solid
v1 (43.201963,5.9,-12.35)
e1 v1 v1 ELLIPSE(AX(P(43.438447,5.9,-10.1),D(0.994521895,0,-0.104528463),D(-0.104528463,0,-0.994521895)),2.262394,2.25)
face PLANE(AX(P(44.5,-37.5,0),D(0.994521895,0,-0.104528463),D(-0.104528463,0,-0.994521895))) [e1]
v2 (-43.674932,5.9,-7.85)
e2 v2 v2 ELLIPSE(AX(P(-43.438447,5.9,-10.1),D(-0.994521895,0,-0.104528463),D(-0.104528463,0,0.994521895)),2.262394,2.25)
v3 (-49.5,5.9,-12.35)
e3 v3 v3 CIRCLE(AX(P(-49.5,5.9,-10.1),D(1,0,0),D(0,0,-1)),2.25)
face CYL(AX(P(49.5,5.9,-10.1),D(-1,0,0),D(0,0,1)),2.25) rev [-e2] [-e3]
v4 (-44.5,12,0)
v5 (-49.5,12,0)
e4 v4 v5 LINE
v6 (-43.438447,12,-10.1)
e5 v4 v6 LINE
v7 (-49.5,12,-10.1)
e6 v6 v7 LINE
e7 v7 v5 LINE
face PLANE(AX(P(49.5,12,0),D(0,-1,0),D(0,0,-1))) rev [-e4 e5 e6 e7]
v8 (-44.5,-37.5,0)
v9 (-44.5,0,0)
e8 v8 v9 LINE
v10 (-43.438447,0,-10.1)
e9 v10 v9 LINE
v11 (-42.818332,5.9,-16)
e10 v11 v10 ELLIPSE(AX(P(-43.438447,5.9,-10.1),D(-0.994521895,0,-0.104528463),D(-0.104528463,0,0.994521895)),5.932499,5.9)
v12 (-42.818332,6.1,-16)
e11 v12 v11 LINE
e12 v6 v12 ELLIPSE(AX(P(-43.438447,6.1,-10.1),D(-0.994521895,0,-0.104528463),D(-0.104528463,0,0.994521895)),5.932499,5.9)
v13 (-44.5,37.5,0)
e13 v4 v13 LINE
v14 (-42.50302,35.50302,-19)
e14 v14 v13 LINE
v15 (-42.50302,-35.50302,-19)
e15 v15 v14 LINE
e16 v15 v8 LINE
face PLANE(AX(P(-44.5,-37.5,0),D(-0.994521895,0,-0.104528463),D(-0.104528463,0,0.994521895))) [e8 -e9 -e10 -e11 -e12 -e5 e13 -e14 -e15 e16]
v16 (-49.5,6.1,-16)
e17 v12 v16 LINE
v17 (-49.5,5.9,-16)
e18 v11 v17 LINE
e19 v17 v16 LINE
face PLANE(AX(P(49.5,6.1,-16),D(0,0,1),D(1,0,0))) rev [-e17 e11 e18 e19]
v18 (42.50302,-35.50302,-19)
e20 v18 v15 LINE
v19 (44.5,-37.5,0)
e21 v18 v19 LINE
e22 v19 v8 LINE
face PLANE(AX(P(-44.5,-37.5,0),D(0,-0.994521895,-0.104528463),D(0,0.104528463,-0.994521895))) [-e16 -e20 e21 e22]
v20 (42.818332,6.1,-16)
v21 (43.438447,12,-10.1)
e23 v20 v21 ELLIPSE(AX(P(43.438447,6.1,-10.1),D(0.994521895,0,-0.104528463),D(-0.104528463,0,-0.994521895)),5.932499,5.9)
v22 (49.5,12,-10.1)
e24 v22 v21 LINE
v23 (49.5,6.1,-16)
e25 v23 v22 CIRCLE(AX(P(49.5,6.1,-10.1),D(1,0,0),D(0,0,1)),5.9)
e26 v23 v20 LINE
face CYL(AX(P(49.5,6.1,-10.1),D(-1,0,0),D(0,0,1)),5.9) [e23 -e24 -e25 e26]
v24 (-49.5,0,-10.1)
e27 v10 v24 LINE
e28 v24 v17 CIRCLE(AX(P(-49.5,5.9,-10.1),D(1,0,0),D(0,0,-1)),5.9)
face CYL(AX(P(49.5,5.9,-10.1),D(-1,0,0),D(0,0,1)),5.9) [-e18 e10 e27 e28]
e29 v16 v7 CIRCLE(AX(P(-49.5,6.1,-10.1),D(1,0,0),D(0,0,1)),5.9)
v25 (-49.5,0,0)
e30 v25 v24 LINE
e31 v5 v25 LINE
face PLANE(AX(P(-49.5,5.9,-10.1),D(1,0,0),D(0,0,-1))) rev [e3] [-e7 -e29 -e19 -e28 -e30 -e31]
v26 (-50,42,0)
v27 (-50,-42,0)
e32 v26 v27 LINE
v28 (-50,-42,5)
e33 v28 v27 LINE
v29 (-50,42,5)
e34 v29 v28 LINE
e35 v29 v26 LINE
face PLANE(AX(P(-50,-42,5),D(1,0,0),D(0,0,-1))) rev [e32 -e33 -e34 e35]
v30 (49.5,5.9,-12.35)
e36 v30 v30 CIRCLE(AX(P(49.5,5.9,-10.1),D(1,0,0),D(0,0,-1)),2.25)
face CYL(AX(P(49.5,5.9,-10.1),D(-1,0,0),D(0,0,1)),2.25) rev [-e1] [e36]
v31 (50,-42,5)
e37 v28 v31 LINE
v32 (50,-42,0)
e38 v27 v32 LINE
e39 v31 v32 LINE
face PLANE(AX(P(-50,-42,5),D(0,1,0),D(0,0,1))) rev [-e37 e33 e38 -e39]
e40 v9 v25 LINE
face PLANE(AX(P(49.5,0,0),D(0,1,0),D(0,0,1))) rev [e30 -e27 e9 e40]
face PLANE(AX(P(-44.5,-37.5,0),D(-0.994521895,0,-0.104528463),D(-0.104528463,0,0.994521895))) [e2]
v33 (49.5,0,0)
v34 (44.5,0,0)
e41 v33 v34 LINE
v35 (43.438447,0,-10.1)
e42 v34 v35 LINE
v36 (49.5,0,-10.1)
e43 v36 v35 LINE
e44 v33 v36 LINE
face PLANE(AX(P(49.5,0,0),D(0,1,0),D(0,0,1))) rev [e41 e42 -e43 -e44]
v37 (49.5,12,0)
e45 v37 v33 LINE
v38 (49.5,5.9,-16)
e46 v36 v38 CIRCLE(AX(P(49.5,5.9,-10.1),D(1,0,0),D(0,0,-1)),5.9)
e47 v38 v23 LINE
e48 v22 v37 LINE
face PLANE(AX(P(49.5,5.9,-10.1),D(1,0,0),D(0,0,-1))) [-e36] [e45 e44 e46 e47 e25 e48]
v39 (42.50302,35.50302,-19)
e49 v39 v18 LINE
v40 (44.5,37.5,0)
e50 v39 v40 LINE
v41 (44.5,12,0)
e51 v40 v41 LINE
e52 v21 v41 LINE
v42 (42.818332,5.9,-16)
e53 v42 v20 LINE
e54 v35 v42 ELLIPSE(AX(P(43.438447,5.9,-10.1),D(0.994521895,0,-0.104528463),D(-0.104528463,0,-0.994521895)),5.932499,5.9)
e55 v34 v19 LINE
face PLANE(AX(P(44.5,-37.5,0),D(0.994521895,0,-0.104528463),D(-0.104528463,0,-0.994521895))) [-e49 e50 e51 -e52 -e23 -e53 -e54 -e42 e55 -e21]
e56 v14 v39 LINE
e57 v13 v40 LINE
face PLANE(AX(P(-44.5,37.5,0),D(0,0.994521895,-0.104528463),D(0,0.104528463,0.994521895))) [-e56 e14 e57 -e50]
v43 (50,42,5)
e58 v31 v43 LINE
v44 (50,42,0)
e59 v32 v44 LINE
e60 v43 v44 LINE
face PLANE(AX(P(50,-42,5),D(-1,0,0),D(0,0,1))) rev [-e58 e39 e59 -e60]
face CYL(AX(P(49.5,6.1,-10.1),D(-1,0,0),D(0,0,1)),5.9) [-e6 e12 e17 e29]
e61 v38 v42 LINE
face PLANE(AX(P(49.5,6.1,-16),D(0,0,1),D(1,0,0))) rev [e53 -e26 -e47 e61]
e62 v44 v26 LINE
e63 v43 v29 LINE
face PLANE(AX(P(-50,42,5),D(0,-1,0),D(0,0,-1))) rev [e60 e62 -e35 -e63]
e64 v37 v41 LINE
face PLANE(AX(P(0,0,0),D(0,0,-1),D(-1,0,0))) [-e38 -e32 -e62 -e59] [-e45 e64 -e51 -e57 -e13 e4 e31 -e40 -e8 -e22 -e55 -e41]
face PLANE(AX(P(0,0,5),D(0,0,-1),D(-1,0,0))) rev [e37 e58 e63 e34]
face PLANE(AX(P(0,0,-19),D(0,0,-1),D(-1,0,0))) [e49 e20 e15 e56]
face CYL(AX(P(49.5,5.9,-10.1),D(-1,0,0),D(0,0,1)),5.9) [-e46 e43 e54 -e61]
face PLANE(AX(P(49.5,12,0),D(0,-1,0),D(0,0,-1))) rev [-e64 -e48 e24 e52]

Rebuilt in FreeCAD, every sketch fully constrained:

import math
import FreeCAD as App
import Part
import Sketcher

V = App.Vector


def add_polygon(sketch, points):
    """Adds a closed chain of lines whose ends are joined by coincident constraints."""
    first, n = sketch.GeometryCount, len(points)
    for a, b in zip(points, points[1:] + points[:1]):
        sketch.addGeometry(Part.LineSegment(App.Vector(*a, 0), App.Vector(*b, 0)), False)
    for i in range(n):
        sketch.addConstraint(Sketcher.Constraint("Coincident", first + i, 2, first + (i + 1) % n, 1))

doc = App.newDocument("Part")
body = doc.addObject("PartDesign::Body", "Body")

# Sketch on XY plane
sketch1 = body.newObject("Sketcher::SketchObject", "Sketch")
sketch1.AttachmentSupport = (doc.getObject("XY_Plane"), [""])
sketch1.MapMode = "FlatFace"
add_polygon(sketch1, [(-50, 42), (-50, -42), (50, -42), (50, 42)])  # lines 0-3
sketch1.addConstraint([
    Sketcher.Constraint("Vertical", 0),
    Sketcher.Constraint("Horizontal", 1),
    Sketcher.Constraint("Vertical", 2),
    Sketcher.Constraint("Horizontal", 3),
    Sketcher.Constraint("Symmetric", 0, 2, 2, 2, -1, 1),
    Sketcher.Constraint("DistanceX", 1, 1, 1, 2, 100.0),
    Sketcher.Constraint("DistanceY", 0, 2, 0, 1, 84.0),
])
pad1 = body.newObject("PartDesign::Pad", "Pad")
pad1.Profile = sketch1
pad1.Length = 5

# Sketch on XY plane
sketch2 = body.newObject("Sketcher::SketchObject", "Sketch001")
sketch2.AttachmentSupport = (doc.getObject("XY_Plane"), [""])
sketch2.MapMode = "FlatFace"
add_polygon(sketch2, [(44.5, 37.5), (44.5, -37.5), (-44.5, -37.5), (-44.5, 37.5)])  # lines 0-3
sketch2.addConstraint([
    Sketcher.Constraint("Vertical", 0),
    Sketcher.Constraint("Horizontal", 1),
    Sketcher.Constraint("Vertical", 2),
    Sketcher.Constraint("Horizontal", 3),
    Sketcher.Constraint("Symmetric", 0, 2, 2, 2, -1, 1),
    Sketcher.Constraint("DistanceX", 1, 2, 1, 1, 89.0),
    Sketcher.Constraint("DistanceY", 0, 2, 0, 1, 75.0),
])
pad2 = body.newObject("PartDesign::Pad", "Pad001")
pad2.Profile = sketch2
pad2.Length = 19
pad2.Reversed = True
pad2.TaperAngle = -6

# Sketch on YZ plane
sketch3 = body.newObject("Sketcher::SketchObject", "Sketch002")
sketch3.AttachmentSupport = (doc.getObject("YZ_Plane"), [""])
sketch3.MapMode = "FlatFace"
sketch3.addGeometry([
    Part.LineSegment(V(12, -10.1, 0), V(12, 0, 0)),  # 0
    Part.LineSegment(V(12, 0, 0), V(0, 0, 0)),  # 1
    Part.LineSegment(V(0, 0, 0), V(0, -10.1, 0)),  # 2
    Part.ArcOfCircle(Part.Circle(V(5.9, -10.1, 0), V(0, 0, 1), 5.9), math.radians(180), math.radians(270)),  # 3
    Part.LineSegment(V(5.9, -16, 0), V(6.1, -16, 0)),  # 4
    Part.ArcOfCircle(Part.Circle(V(6.1, -10.1, 0), V(0, 0, 1), 5.9), math.radians(-90), math.radians(0)),  # 5
    Part.Circle(V(5.9, -10.1, 0), V(0, 0, 1), 2.25),  # 6
], False)
sketch3.addConstraint([
    Sketcher.Constraint("Coincident", 0, 2, 1, 1),
    Sketcher.Constraint("Coincident", 1, 2, 2, 1),
    Sketcher.Constraint("Tangent", 2, 2, 3, 1),
    Sketcher.Constraint("Tangent", 3, 2, 4, 1),
    Sketcher.Constraint("Tangent", 4, 2, 5, 1),
    Sketcher.Constraint("Tangent", 5, 2, 0, 1),
    Sketcher.Constraint("Vertical", 0),
    Sketcher.Constraint("Horizontal", 1),
    Sketcher.Constraint("Vertical", 2),
    Sketcher.Constraint("Horizontal", 4),
    Sketcher.Constraint("Coincident", 1, 2, -1, 1),
    Sketcher.Constraint("Coincident", 6, 3, 3, 3),
    Sketcher.Constraint("Equal", 3, 5),
    Sketcher.Constraint("Diameter", 6, 4.5),
    Sketcher.Constraint("Radius", 3, 5.9),
    Sketcher.Constraint("DistanceX", 1, 2, 1, 1, 12.0),
    Sketcher.Constraint("DistanceY", 0, 1, 0, 2, 10.1),
])
pad3 = body.newObject("PartDesign::Pad", "Pad002")
pad3.Profile = sketch3
pad3.Length = 99
pad3.Midplane = True

doc.recompute()
